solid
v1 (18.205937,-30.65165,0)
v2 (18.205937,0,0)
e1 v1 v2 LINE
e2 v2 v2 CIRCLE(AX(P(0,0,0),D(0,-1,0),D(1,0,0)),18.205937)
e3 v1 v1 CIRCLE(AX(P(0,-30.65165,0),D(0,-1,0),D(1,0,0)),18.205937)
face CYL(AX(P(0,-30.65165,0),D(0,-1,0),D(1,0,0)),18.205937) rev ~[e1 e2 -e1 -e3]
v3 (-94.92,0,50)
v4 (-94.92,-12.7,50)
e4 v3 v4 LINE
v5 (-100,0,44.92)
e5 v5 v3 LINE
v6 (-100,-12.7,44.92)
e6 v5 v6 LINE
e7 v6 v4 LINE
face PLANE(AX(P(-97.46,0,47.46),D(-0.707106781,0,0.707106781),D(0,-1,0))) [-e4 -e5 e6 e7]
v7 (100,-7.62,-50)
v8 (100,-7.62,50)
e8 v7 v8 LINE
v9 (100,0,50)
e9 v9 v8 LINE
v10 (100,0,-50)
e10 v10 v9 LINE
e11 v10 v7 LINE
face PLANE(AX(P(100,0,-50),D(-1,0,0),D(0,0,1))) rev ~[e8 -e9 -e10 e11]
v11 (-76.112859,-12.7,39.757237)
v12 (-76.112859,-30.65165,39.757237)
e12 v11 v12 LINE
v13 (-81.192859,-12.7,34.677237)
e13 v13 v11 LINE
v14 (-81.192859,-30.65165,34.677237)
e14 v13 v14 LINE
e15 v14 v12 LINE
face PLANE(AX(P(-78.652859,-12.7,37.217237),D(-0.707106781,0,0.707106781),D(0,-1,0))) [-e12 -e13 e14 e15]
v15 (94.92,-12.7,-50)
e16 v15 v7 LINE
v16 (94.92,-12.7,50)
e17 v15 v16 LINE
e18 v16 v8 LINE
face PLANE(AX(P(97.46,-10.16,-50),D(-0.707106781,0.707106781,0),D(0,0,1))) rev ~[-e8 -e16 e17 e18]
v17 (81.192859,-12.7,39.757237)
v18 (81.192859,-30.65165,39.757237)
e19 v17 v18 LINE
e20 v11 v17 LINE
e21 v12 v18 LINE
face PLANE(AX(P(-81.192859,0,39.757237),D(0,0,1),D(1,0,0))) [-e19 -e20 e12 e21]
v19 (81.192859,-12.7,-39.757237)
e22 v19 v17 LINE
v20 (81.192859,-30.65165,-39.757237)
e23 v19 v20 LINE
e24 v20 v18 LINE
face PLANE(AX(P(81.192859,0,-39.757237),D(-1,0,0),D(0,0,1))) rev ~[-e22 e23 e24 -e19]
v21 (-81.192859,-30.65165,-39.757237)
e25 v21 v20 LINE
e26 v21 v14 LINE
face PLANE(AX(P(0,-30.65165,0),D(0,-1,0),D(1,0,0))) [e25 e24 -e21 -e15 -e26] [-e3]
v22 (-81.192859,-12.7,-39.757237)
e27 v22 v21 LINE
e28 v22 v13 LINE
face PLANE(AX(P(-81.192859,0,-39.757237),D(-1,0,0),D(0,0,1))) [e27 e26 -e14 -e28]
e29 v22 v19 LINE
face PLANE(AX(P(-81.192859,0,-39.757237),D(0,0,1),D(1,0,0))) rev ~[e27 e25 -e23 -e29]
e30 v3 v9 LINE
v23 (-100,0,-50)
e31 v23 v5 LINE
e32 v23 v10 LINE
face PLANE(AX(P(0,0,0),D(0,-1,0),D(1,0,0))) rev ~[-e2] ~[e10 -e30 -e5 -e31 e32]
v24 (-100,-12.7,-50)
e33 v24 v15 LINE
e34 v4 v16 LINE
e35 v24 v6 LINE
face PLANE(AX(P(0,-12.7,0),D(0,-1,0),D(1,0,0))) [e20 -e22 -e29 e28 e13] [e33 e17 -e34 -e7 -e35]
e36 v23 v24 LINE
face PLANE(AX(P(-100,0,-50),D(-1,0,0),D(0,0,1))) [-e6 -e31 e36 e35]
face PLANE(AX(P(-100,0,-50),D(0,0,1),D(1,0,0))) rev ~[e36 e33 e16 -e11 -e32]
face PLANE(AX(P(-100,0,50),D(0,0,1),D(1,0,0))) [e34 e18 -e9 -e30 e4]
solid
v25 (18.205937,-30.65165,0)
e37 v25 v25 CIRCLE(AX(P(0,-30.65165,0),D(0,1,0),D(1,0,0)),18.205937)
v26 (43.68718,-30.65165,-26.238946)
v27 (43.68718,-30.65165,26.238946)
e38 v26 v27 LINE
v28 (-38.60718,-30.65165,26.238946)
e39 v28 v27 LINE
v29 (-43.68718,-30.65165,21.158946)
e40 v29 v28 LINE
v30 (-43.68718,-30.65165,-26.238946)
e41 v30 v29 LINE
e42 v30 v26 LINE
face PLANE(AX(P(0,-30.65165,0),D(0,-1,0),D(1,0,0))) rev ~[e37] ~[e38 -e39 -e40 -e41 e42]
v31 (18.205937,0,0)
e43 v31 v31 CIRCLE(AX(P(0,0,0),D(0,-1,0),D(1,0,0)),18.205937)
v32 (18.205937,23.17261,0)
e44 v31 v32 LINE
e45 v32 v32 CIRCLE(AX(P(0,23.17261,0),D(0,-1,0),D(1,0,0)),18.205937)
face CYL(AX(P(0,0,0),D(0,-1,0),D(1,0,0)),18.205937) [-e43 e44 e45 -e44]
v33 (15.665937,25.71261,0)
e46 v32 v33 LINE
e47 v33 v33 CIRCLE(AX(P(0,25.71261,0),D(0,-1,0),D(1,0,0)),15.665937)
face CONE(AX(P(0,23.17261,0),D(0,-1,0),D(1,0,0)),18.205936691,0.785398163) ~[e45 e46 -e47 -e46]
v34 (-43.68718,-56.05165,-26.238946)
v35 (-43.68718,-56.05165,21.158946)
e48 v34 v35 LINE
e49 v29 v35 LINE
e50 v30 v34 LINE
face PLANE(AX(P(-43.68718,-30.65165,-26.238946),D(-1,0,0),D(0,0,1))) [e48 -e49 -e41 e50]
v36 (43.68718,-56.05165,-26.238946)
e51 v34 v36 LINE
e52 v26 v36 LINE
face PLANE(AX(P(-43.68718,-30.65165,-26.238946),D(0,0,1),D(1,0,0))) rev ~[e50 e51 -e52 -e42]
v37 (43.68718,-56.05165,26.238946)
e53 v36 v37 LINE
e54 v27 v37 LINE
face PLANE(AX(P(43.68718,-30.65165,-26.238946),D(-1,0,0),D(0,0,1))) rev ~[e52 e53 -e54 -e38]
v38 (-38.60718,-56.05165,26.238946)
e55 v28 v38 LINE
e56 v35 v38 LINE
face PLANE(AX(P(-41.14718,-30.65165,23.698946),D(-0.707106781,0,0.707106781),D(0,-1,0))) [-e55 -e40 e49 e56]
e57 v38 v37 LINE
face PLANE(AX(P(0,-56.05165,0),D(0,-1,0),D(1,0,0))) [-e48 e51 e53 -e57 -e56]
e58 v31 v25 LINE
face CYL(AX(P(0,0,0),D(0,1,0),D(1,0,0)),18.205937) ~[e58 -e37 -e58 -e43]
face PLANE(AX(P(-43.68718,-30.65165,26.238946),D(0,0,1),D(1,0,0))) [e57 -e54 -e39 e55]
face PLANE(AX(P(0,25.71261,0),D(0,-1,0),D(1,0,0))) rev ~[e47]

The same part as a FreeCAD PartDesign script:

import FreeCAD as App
import Part
import Sketcher
from FreeCAD import Vector
Q = App.Units.Quantity


def edges_at(feature, points):
    """Names of the edges that pass closest to the given points."""
    edges = feature.Shape.Edges
    near = lambda p: min(range(len(edges)), key=lambda i: edges[i].distToShape(Part.Vertex(*p))[0])
    return sorted({f"Edge{near(p) + 1}" for p in points})

doc = App.newDocument("Part")
body = doc.addObject("PartDesign::Body", "Body")

# Sketch on XZ plane
sketch1 = doc.addObject("Sketcher::SketchObject", "Sketch")
body.addObject(sketch1)
sketch1.AttachmentSupport = (doc.XZ_Plane, [""])
sketch1.MapMode = "FlatFace"
sketch1.addGeometry([
    Part.LineSegment(Vector(-100, 50, 0), Vector(-100, -50, 0)),  # 0
    Part.LineSegment(Vector(-100, -50, 0), Vector(100, -50, 0)),  # 1
    Part.LineSegment(Vector(100, -50, 0), Vector(100, 50, 0)),  # 2
    Part.LineSegment(Vector(100, 50, 0), Vector(-100, 50, 0)),  # 3
    Part.LineSegment(Vector(81.192859, -39.757237, 0), Vector(-81.192859, -39.757237, 0)),  # 4
    Part.LineSegment(Vector(-81.192859, -39.757237, 0), Vector(-81.192859, 39.757237, 0)),  # 5
    Part.LineSegment(Vector(-81.192859, 39.757237, 0), Vector(81.192859, 39.757237, 0)),  # 6
    Part.LineSegment(Vector(81.192859, 39.757237, 0), Vector(81.192859, -39.757237, 0)),  # 7
], False)
sketch1.addConstraint([
    Sketcher.Constraint("Coincident", 0, 2, 1, 1),
    Sketcher.Constraint("Coincident", 1, 2, 2, 1),
    Sketcher.Constraint("Coincident", 2, 2, 3, 1),
    Sketcher.Constraint("Coincident", 3, 2, 0, 1),
    Sketcher.Constraint("Coincident", 4, 2, 5, 1),
    Sketcher.Constraint("Coincident", 5, 2, 6, 1),
    Sketcher.Constraint("Coincident", 6, 2, 7, 1),
    Sketcher.Constraint("Coincident", 7, 2, 4, 1),
    Sketcher.Constraint("Vertical", 0),
    Sketcher.Constraint("Horizontal", 1),
    Sketcher.Constraint("Vertical", 2),
    Sketcher.Constraint("Horizontal", 3),
    Sketcher.Constraint("Horizontal", 4),
    Sketcher.Constraint("Vertical", 5),
    Sketcher.Constraint("Horizontal", 6),
    Sketcher.Constraint("Vertical", 7),
    Sketcher.Constraint("Symmetric", 0, 2, 2, 2, -1, 1),
    Sketcher.Constraint("Symmetric", 4, 2, 6, 2, -1, 1),
    Sketcher.Constraint("DistanceX", 1, 1, 1, 2, Q("200 mm")),
    Sketcher.Constraint("DistanceY", 0, 2, 0, 1, Q("100 mm")),
    Sketcher.Constraint("DistanceX", 4, 2, 4, 1, Q("162.385717 mm")),
    Sketcher.Constraint("DistanceY", 5, 1, 5, 2, Q("79.514474 mm")),
])
pad1 = doc.addObject("PartDesign::Pad", "Pad")
body.addObject(pad1)
pad1.Profile = sketch1
pad1.Length = Q("0.5 in")

# Sketch on XZ plane
sketch2 = doc.addObject("Sketcher::SketchObject", "Sketch001")
body.addObject(sketch2)
sketch2.AttachmentSupport = (doc.XZ_Plane, [""])
sketch2.MapMode = "FlatFace"
sketch2.addGeometry([
    Part.LineSegment(Vector(-81.192859, 39.757237, 0), Vector(-81.192859, -39.757237, 0)),
    Part.LineSegment(Vector(-81.192859, -39.757237, 0), Vector(81.192859, -39.757237, 0)),
    Part.LineSegment(Vector(81.192859, -39.757237, 0), Vector(81.192859, 39.757237, 0)),
    Part.LineSegment(Vector(81.192859, 39.757237, 0), Vector(-81.192859, 39.757237, 0)),
], False)
sketch2.addConstraint([
    Sketcher.Constraint("Coincident", 0, 2, 1, 1),
    Sketcher.Constraint("Coincident", 1, 2, 2, 1),
    Sketcher.Constraint("Coincident", 2, 2, 3, 1),
    Sketcher.Constraint("Coincident", 3, 2, 0, 1),
    Sketcher.Constraint("Vertical", 0),
    Sketcher.Constraint("Horizontal", 1),
    Sketcher.Constraint("Vertical", 2),
    Sketcher.Constraint("Horizontal", 3),
    Sketcher.Constraint("Symmetric", 0, 2, 2, 2, -1, 1),
    Sketcher.Constraint("DistanceX", 1, 1, 1, 2, Q("162.385717 mm")),
    Sketcher.Constraint("DistanceY", 0, 2, 0, 1, Q("79.514474 mm")),
])
pad2 = doc.addObject("PartDesign::Pad", "Pad001")
body.addObject(pad2)
pad2.Profile = sketch2
pad2.Length = 30.65165

# Sketch on XZ plane
sketch3 = doc.addObject("Sketcher::SketchObject", "Sketch002")
body.addObject(sketch3)
sketch3.AttachmentSupport = (doc.XZ_Plane, [""])
sketch3.MapMode = "FlatFace"
sketch3.AttachmentOffset = App.Placement(Vector(0, 0, 30.65165), App.Rotation())
sketch3.addGeometry(Part.Circle(Vector(0, 0, 0), Vector(0, 0, 1), 18.205937), False)
sketch3.addConstraint([
    Sketcher.Constraint("Coincident", 0, 3, -1, 1),
    Sketcher.Constraint("Diameter", 0, Q("36.411873 mm")),
])
pocket1 = doc.addObject("PartDesign::Pocket", "Pocket")
body.addObject(pocket1)
pocket1.Profile = sketch3
pocket1.Length = 77.93234
doc.recompute()

chamfer = doc.addObject("PartDesign::Chamfer", "Chamfer")
body.addObject(chamfer)
chamfer.Base = (pocket1, edges_at(pocket1, [(100, -12.7, 0), (-81.193, -21.676, 39.757), (-100, -6.35, 50)]))
chamfer.Size = Q("0.2 in")
body2 = doc.addObject("PartDesign::Body", "Body001")

# Sketch on XZ plane
sketch4 = doc.addObject("Sketcher::SketchObject", "Sketch003")
body2.addObject(sketch4)
sketch4.AttachmentSupport = (doc.getObject("XZ_Plane001"), [""])
sketch4.MapMode = "FlatFace"
sketch4.AttachmentOffset = App.Placement(Vector(0, 0, 30.65165), App.Rotation())
sketch4.addGeometry([
    Part.LineSegment(Vector(-43.68718, 26.238946, 0), Vector(-43.68718, -26.238946, 0)),
    Part.LineSegment(Vector(-43.68718, -26.238946, 0), Vector(43.68718, -26.238946, 0)),
    Part.LineSegment(Vector(43.68718, -26.238946, 0), Vector(43.68718, 26.238946, 0)),
    Part.LineSegment(Vector(43.68718, 26.238946, 0), Vector(-43.68718, 26.238946, 0)),
], False)
sketch4.addConstraint([
    Sketcher.Constraint("Coincident", 0, 2, 1, 1),
    Sketcher.Constraint("Coincident", 1, 2, 2, 1),
    Sketcher.Constraint("Coincident", 2, 2, 3, 1),
    Sketcher.Constraint("Coincident", 3, 2, 0, 1),
    Sketcher.Constraint("Vertical", 0),
    Sketcher.Constraint("Horizontal", 1),
    Sketcher.Constraint("Vertical", 2),
    Sketcher.Constraint("Horizontal", 3),
    Sketcher.Constraint("Symmetric", 0, 2, 2, 2, -1, 1),
    Sketcher.Constraint("DistanceX", 1, 1, 1, 2, Q("87.374359 mm")),
    Sketcher.Constraint("DistanceY", 0, 2, 0, 1, Q("52.477892 mm")),
])
pad3 = doc.addObject("PartDesign::Pad", "Pad002")
body2.addObject(pad3)
pad3.Profile = sketch4
pad3.Length = Q("1 in")
body3 = doc.addObject("PartDesign::Body", "Body002")

# Sketch on XZ plane
sketch5 = doc.addObject("Sketcher::SketchObject", "Sketch004")
body3.addObject(sketch5)
sketch5.AttachmentSupport = (doc.getObject("XZ_Plane002"), [""])
sketch5.MapMode = "FlatFace"
sketch5.addGeometry(Part.Circle(Vector(0, 0, 0), Vector(0, 0, 1), 18.205937), False)
sketch5.addConstraint([
    Sketcher.Constraint("Coincident", 0, 3, -1, 1),
    Sketcher.Constraint("Diameter", 0, Q("36.411873 mm")),
])
pad4 = doc.addObject("PartDesign::Pad", "Pad003")
body3.addObject(pad4)
pad4.Profile = sketch5
pad4.Length = 25.71261
pad4.Reversed = True
body2.AllowCompound = True
doc.recompute()

boolean = doc.addObject("PartDesign::Boolean", "Boolean")
body2.addObject(boolean)
boolean.Type = "Fuse"
boolean.addObjects([body3])

# Sketch on XZ plane
sketch6 = doc.addObject("Sketcher::SketchObject", "Sketch005")
body2.addObject(sketch6)
sketch6.AttachmentSupport = (doc.getObject("XZ_Plane001"), [""])
sketch6.MapMode = "FlatFace"
sketch6.addGeometry(Part.Circle(Vector(0, 0, 0), Vector(0, 0, 1), 18.205937), False)
sketch6.addConstraint([
    Sketcher.Constraint("Coincident", 0, 3, -1, 1),
    Sketcher.Constraint("Diameter", 0, Q("36.411873 mm")),
])
pad5 = doc.addObject("PartDesign::Pad", "Pad004")
body2.addObject(pad5)
pad5.Profile = sketch6
pad5.Length = 33.7499
doc.recompute()

chamfer2 = doc.addObject("PartDesign::Chamfer", "Chamfer001")
body2.addObject(chamfer2)
chamfer2.Base = (pad5, edges_at(pad5, [(-43.687, -43.352, 26.239)]))
chamfer2.Size = Q("0.2 in")
doc.recompute()

chamfer3 = doc.addObject("PartDesign::Chamfer", "Chamfer002")
body2.addObject(chamfer3)
chamfer3.Base = (chamfer2, edges_at(chamfer2, [(-18.206, 25.713, 0)]))
chamfer3.Size = Q("0.1 in")

doc.recompute()
